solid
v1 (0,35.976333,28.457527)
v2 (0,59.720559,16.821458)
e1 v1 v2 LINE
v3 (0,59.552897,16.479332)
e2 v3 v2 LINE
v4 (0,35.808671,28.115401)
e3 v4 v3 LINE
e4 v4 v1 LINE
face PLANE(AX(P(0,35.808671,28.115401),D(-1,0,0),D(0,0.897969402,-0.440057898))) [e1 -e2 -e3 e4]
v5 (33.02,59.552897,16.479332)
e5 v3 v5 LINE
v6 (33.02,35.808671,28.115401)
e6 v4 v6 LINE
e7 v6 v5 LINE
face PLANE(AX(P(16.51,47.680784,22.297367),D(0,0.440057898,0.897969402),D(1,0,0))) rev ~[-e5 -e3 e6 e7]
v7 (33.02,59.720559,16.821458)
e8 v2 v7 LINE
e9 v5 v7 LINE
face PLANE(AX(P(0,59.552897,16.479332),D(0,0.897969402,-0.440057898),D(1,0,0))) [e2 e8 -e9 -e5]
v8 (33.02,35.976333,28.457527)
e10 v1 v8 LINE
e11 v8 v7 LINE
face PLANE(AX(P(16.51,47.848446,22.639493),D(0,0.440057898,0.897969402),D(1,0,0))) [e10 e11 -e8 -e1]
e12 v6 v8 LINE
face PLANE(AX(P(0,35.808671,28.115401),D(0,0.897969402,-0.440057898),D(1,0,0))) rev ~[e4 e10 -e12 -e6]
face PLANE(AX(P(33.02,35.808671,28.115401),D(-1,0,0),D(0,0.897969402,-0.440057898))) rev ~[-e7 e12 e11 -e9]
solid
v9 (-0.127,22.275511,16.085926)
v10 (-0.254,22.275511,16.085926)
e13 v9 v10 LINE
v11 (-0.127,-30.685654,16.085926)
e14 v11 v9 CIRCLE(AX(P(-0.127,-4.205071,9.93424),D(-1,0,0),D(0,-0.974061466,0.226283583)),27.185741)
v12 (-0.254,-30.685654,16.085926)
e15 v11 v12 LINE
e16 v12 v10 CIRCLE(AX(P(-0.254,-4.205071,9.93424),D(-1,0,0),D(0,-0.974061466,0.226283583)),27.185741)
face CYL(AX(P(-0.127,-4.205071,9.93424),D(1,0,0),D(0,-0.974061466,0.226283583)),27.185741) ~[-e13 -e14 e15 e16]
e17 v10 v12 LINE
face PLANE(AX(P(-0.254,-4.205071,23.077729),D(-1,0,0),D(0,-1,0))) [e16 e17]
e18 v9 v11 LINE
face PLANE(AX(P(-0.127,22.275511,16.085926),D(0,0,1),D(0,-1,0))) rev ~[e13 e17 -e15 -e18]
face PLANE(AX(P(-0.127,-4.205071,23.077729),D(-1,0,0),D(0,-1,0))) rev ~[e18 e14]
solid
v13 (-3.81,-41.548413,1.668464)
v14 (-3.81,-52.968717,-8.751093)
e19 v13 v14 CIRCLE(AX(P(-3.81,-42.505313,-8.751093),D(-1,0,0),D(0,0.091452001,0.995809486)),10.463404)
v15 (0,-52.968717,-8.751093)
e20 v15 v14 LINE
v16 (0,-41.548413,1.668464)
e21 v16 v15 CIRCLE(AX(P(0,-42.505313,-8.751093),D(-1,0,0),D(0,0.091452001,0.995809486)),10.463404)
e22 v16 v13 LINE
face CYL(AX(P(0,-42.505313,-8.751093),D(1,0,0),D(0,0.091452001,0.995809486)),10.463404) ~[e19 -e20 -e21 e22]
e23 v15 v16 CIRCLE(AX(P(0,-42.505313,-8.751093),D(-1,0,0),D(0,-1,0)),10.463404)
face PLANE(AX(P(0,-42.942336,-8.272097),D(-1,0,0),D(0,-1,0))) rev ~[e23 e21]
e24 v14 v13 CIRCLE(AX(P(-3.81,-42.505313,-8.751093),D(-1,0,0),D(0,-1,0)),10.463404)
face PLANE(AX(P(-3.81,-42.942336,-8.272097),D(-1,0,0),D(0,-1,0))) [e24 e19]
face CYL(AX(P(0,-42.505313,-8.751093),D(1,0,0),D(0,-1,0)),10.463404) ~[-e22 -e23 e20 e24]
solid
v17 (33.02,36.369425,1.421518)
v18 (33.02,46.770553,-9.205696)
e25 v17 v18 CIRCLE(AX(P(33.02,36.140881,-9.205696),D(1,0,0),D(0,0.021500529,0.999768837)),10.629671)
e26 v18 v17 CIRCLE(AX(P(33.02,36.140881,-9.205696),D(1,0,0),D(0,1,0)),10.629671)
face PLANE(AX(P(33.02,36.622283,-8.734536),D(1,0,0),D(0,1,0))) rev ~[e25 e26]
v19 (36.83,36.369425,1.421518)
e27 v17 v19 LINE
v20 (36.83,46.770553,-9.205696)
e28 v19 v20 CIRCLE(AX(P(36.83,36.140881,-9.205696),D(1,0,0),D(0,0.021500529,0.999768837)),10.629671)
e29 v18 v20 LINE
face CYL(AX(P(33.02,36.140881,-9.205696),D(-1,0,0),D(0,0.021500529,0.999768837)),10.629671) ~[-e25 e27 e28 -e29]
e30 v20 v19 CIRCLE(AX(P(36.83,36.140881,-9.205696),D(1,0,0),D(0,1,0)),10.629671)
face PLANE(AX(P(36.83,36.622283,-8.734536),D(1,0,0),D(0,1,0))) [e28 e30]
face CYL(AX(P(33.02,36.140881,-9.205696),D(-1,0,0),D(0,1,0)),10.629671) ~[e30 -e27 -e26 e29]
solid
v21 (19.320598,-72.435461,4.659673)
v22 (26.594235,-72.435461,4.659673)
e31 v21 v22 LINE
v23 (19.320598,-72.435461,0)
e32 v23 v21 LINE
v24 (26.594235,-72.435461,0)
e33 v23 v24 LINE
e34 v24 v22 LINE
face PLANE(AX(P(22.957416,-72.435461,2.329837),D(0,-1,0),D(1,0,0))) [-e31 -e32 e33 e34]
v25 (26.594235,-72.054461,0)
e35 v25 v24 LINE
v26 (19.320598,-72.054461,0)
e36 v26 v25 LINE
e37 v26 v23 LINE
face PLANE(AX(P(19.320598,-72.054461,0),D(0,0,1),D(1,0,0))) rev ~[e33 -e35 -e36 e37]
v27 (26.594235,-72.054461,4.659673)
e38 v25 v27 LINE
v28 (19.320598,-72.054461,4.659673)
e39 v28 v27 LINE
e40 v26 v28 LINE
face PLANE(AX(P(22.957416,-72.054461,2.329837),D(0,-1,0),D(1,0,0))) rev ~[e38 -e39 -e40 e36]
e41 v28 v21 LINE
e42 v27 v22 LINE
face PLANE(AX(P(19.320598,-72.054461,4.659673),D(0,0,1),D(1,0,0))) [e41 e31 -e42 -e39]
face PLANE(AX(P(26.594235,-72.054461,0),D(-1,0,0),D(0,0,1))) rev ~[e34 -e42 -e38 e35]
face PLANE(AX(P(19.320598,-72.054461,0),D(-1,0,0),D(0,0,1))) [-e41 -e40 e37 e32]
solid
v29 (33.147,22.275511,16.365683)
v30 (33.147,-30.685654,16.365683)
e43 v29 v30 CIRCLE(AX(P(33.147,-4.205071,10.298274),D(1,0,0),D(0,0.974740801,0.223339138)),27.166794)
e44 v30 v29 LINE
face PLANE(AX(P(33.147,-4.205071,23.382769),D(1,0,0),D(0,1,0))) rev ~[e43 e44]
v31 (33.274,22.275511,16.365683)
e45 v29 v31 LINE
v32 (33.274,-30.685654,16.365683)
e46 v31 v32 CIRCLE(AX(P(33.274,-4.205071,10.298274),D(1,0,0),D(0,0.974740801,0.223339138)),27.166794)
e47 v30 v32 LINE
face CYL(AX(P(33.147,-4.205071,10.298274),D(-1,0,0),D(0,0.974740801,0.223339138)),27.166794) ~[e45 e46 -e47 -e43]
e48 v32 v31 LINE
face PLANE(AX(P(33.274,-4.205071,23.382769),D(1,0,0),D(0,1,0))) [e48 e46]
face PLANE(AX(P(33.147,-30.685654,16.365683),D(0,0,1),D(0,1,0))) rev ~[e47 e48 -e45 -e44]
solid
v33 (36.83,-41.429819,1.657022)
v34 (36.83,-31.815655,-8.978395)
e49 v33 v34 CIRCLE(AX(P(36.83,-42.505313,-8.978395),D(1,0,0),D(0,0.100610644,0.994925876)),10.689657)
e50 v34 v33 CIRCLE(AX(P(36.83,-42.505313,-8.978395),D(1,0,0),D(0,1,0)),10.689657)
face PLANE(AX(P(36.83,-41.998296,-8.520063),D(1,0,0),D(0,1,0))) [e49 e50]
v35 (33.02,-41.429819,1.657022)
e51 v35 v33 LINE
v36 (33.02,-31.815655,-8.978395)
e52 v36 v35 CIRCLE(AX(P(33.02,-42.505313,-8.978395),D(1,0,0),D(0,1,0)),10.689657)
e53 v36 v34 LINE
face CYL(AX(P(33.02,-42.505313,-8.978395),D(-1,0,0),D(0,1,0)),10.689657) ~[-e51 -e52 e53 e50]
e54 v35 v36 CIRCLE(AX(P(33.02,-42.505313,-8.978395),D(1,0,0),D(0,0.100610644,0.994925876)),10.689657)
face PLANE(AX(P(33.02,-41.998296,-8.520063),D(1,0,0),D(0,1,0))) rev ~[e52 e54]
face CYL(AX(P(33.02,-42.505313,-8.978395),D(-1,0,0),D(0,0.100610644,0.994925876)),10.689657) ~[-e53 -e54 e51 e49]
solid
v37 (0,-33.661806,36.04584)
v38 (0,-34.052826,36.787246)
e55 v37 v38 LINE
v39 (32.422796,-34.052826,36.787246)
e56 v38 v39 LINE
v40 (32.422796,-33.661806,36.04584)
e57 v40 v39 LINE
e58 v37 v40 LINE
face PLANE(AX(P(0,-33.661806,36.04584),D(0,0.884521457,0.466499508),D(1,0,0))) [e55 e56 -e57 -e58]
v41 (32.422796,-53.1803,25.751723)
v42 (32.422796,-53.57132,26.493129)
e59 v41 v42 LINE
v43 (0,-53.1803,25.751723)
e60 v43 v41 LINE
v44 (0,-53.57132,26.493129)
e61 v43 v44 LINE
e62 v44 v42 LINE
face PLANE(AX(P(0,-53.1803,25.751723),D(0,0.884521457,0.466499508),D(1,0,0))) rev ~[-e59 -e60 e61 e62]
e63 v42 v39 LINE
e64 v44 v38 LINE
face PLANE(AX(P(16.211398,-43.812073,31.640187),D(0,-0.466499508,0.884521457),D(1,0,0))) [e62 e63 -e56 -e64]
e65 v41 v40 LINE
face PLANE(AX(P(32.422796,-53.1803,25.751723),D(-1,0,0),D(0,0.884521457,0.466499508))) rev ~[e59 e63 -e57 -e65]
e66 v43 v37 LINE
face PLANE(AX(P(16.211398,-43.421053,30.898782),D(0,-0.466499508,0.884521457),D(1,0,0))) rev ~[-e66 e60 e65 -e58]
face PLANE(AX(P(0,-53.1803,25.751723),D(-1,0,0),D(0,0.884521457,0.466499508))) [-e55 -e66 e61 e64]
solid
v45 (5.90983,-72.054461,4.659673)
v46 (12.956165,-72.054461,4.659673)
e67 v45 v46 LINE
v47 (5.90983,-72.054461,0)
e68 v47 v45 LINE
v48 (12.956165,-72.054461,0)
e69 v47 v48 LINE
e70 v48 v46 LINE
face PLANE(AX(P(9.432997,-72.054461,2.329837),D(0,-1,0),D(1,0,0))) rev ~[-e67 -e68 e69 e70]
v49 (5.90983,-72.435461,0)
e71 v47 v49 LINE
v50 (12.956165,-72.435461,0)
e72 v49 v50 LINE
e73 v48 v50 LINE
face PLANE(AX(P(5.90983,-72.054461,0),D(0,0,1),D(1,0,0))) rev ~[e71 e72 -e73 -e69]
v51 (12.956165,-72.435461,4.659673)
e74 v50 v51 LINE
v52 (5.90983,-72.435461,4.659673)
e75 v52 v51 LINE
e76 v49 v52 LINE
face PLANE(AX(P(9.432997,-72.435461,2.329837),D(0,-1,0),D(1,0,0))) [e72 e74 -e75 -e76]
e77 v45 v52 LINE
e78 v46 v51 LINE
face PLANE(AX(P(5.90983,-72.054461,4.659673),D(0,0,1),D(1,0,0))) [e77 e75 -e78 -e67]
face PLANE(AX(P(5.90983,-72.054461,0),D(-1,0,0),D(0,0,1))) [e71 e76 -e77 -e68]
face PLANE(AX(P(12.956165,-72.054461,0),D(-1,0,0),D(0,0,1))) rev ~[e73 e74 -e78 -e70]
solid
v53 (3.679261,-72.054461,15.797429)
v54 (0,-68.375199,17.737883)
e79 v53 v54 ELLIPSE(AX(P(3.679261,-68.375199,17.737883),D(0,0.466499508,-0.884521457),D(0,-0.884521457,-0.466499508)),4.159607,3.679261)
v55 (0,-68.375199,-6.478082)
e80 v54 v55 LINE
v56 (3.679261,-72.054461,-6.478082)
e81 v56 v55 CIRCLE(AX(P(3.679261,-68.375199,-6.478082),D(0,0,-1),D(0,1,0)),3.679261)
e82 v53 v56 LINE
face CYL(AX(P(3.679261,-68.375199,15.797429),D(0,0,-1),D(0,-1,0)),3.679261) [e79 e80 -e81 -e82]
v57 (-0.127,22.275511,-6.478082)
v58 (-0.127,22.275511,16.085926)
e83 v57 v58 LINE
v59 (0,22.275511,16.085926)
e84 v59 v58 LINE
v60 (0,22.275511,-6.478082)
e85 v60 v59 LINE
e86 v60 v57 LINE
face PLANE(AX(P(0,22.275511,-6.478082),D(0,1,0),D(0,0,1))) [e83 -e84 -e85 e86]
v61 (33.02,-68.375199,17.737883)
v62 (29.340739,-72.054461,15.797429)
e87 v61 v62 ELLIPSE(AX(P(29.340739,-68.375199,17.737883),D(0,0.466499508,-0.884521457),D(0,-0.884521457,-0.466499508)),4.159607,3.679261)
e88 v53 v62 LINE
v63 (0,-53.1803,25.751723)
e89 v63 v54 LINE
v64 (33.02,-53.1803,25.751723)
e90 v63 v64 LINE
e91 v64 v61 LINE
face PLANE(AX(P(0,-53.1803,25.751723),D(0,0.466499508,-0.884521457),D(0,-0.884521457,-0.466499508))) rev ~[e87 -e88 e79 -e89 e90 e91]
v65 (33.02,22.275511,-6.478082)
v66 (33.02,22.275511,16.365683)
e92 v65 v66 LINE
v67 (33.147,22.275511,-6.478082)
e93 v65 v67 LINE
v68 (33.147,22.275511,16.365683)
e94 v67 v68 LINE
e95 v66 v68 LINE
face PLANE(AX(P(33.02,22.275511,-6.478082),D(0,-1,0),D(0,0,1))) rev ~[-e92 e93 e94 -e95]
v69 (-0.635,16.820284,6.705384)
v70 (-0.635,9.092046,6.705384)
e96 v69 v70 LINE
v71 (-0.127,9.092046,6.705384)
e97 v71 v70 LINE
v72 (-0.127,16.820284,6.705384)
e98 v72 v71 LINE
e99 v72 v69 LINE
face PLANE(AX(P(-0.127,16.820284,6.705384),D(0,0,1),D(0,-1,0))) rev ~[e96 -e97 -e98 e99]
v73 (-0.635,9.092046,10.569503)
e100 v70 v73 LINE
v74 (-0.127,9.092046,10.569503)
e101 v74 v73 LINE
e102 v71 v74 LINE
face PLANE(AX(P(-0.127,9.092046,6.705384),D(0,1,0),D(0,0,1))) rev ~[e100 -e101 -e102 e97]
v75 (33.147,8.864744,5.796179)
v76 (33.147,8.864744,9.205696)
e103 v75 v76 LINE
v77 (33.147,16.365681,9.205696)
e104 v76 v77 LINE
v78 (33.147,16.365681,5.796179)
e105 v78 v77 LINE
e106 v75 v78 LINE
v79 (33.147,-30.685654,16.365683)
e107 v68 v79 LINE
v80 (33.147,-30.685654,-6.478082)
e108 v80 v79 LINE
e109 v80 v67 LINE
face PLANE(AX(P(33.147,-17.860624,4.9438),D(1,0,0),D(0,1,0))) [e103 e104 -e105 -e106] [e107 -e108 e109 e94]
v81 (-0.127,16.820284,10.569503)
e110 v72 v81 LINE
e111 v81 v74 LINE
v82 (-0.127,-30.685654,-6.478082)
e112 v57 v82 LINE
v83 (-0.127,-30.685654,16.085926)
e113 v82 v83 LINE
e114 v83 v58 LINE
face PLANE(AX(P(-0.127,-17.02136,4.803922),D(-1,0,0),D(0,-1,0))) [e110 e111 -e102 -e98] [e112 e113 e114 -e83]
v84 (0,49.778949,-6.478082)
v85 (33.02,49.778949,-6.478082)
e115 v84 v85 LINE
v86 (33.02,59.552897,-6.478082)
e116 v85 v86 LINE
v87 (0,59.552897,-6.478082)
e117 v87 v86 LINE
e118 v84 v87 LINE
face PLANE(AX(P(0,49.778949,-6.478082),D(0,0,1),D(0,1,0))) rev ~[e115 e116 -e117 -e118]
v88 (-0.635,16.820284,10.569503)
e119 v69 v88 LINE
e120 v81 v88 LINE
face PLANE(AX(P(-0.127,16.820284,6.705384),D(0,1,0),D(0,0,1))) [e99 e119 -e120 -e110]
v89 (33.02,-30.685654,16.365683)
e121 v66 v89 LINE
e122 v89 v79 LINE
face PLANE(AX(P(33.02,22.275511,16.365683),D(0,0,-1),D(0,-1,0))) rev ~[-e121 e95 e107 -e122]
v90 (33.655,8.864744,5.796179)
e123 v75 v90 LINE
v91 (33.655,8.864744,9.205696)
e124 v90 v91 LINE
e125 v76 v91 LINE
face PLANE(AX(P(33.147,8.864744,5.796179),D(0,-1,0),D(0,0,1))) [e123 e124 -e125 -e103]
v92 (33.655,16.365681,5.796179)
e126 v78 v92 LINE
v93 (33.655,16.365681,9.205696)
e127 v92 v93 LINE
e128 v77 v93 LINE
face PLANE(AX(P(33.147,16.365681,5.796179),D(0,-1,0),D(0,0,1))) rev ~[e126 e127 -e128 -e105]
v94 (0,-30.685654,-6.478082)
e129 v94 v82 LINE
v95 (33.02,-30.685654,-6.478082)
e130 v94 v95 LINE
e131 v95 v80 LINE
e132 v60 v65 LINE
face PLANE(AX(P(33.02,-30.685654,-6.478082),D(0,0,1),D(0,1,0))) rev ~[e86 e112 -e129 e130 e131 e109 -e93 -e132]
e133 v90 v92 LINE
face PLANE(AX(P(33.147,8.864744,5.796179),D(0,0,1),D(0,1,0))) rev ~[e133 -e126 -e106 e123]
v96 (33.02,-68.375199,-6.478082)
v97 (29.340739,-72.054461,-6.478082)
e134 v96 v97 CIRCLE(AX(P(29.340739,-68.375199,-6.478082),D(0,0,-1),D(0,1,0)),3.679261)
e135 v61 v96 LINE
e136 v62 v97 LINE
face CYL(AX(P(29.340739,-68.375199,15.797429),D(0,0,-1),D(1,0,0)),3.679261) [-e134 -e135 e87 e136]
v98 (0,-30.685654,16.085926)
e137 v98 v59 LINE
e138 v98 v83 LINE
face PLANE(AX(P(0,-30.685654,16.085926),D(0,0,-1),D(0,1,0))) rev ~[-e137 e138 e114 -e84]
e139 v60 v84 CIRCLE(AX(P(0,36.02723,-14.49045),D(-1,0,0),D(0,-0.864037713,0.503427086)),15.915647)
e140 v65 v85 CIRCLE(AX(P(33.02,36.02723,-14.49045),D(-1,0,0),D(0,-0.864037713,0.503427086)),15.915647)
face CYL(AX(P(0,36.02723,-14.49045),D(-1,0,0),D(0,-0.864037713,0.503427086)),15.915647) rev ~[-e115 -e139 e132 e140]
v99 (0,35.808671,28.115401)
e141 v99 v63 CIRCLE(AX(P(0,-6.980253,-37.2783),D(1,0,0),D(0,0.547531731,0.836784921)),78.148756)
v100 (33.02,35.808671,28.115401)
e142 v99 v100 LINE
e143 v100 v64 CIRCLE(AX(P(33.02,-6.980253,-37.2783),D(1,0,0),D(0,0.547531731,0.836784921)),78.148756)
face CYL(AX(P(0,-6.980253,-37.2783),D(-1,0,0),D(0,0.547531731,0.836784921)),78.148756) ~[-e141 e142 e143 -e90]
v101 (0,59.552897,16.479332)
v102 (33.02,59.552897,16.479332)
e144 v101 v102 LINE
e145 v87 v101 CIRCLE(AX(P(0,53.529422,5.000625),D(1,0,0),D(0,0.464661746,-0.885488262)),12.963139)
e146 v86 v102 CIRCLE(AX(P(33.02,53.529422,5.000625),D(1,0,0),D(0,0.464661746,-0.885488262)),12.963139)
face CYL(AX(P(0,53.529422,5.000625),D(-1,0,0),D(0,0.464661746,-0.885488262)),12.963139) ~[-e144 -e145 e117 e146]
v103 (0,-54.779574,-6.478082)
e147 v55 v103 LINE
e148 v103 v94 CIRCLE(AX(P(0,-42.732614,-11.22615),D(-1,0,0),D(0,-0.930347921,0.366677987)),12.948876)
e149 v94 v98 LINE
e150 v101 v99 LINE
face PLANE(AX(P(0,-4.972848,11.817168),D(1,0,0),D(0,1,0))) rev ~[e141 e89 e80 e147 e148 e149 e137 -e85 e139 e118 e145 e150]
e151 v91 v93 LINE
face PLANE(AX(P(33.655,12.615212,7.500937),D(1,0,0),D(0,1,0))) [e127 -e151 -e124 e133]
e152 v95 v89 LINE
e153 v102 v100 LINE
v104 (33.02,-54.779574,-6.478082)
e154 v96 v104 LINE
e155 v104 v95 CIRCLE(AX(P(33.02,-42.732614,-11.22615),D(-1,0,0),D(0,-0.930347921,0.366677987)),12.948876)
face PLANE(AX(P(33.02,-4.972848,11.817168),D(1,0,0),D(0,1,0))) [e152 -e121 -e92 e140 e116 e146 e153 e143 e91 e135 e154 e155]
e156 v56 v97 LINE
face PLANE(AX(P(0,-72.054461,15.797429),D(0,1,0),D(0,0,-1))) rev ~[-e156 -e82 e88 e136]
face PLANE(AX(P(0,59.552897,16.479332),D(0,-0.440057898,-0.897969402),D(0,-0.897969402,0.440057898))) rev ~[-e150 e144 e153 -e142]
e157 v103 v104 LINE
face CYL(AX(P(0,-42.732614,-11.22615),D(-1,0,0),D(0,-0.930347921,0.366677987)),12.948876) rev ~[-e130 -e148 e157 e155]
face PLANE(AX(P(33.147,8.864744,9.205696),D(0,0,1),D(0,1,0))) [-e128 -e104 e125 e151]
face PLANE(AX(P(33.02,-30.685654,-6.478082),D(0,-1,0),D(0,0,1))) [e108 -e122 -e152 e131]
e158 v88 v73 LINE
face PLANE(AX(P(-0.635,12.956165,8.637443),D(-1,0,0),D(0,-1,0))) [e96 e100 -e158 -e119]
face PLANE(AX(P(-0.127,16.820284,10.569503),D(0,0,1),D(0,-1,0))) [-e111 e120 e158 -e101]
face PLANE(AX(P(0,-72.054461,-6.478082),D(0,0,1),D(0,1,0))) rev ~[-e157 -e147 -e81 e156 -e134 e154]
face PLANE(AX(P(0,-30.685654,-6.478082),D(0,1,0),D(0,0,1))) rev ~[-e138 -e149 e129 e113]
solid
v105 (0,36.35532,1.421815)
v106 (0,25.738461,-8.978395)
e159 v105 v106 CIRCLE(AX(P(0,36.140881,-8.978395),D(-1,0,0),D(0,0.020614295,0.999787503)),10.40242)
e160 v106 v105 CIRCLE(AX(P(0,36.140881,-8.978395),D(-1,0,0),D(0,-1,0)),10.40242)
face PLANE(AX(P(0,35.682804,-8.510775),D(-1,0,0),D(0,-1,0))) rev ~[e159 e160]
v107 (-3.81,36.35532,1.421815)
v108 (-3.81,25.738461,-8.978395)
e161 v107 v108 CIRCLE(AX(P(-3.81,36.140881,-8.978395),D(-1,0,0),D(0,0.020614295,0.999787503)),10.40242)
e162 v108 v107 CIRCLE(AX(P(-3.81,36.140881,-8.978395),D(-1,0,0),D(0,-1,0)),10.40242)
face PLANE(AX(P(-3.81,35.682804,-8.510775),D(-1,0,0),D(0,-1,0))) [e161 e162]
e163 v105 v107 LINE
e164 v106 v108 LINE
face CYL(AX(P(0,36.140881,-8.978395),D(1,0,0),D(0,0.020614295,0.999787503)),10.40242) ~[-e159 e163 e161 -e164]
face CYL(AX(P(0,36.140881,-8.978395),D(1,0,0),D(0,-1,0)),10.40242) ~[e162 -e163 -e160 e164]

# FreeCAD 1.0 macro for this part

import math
import FreeCAD as App
import Part
import Sketcher
Q = App.Units.Quantity


def edges_at(feature, points):
    """Names of the edges that pass closest to the given points."""
    edges = feature.Shape.Edges
    near = lambda p: min(range(len(edges)), key=lambda i: edges[i].distToShape(Part.Vertex(*p))[0])
    return sorted({f"Edge{near(p) + 1}" for p in points})

doc = App.newDocument("Part")
body = doc.addObject("PartDesign::Body", "Body")

# Sketch on YZ plane
sketch1 = doc.addObject("Sketcher::SketchObject", "Sketch")
body.addObject(sketch1)
sketch1.AttachmentSupport = (doc.YZ_Plane, [""])
sketch1.MapMode = "FlatFace"
sketch1.addGeometry([
    Part.LineSegment(App.Vector(-72.054461, 15.797429, 0), App.Vector(-72.054461, -6.478082, 0)),  # 0
    Part.LineSegment(App.Vector(-72.054461, -6.478082, 0), App.Vector(-54.779574, -6.478082, 0)),  # 1
    Part.ArcOfCircle(Part.Circle(App.Vector(-42.732614, -11.22615, 0), App.Vector(0, 0, 1), 12.948876), math.radians(21.510885), math.radians(158.489115)),  # 2
    Part.LineSegment(App.Vector(-30.685654, -6.478082, 0), App.Vector(22.275511, -6.478082, 0)),  # 3
    Part.ArcOfCircle(Part.Circle(App.Vector(36.02723, -14.49045, 0), App.Vector(0, 0, 1), 15.915647), math.radians(30.226994), math.radians(149.773006)),  # 4
    Part.LineSegment(App.Vector(49.778949, -6.478082, 0), App.Vector(59.552897, -6.478082, 0)),  # 5
    Part.ArcOfCircle(Part.Circle(App.Vector(53.529422, 5.000625, 0), App.Vector(0, 0, 1), 12.963139), math.radians(-62.311667), math.radians(62.311667)),  # 6
    Part.LineSegment(App.Vector(59.552897, 16.479332, 0), App.Vector(35.808671, 28.115401, 0)),  # 7
    Part.ArcOfCircle(Part.Circle(App.Vector(-6.980253, -37.2783, 0), App.Vector(0, 0, 1), 78.148756), math.radians(56.802156), math.radians(126.240849)),  # 8
    Part.LineSegment(App.Vector(-53.1803, 25.751723, 0), App.Vector(-72.054461, 15.797429, 0)),  # 9
], False)
sketch1.addConstraint([
    Sketcher.Constraint("Coincident", 0, 2, 1, 1),
    Sketcher.Constraint("Coincident", 1, 2, 2, 2),
    Sketcher.Constraint("Coincident", 2, 1, 3, 1),
    Sketcher.Constraint("Coincident", 3, 2, 4, 2),
    Sketcher.Constraint("Coincident", 4, 1, 5, 1),
    Sketcher.Constraint("Coincident", 5, 2, 6, 1),
    Sketcher.Constraint("Coincident", 6, 2, 7, 1),
    Sketcher.Constraint("Coincident", 7, 2, 8, 1),
    Sketcher.Constraint("Coincident", 8, 2, 9, 1),
    Sketcher.Constraint("Coincident", 9, 2, 0, 1),
    Sketcher.Constraint("Vertical", 0),
    Sketcher.Constraint("Horizontal", 1),
    Sketcher.Constraint("Horizontal", 3),
    Sketcher.Constraint("Horizontal", 5),
    Sketcher.Constraint("Horizontal", 1, 2, 2, 1),
    Sketcher.Constraint("Horizontal", 3, 2, 4, 1),
    Sketcher.Constraint("Vertical", 5, 2, 6, 2),
    Sketcher.Constraint("Radius", 6, 12.963139),
    Sketcher.Constraint("Radius", 2, 12.948876),
    Sketcher.Constraint("Radius", 4, 15.915647),
    Sketcher.Constraint("Radius", 8, 78.148756),
    Sketcher.Constraint("DistanceY", 0, 2, 0, 1, 22.275511),
    Sketcher.Constraint("DistanceY", 8, 3, -1, 1, 37.2783),
    Sketcher.Constraint("DistanceY", -1, 1, 7, 2, 28.115401),
    Sketcher.Constraint("DistanceX", 8, 2, -1, 1, 53.1803),
    Sketcher.Constraint("DistanceY", 4, 3, 2, 3, 3.2643),
    Sketcher.Constraint("DistanceX", 2, 1, 8, 3, 23.705401),
    Sketcher.Constraint("DistanceX", 1, 1, 1, 2, 17.274886),
    Sketcher.Constraint("DistanceX", 3, 1, 3, 2, 52.961165),
    Sketcher.Constraint("DistanceX", 5, 1, 5, 2, 9.773947),
    Sketcher.Constraint("DistanceY", 2, 3, -1, 1, 11.22615),
    Sketcher.Constraint("DistanceX", -1, 1, 4, 3, 36.02723),
    Sketcher.Constraint("DistanceX", 0, 2, -1, 1, 72.054461),
    Sketcher.Constraint("DistanceX", 4, 3, 6, 3, 17.502192),
])
pad1 = doc.addObject("PartDesign::Pad", "Pad")
body.addObject(pad1)
pad1.Profile = sketch1
pad1.Length = Q("1.3 in")

# Sketch on YZ plane
sketch2 = doc.addObject("Sketcher::SketchObject", "Sketch001")
body.addObject(sketch2)
sketch2.AttachmentSupport = (doc.YZ_Plane, [""])
sketch2.MapMode = "FlatFace"
sketch2.addGeometry([
    Part.LineSegment(App.Vector(-30.685654, -6.478082, 0), App.Vector(-30.685654, 16.085926, 0)),
    Part.LineSegment(App.Vector(-30.685654, 16.085926, 0), App.Vector(22.275511, 16.085926, 0)),
    Part.LineSegment(App.Vector(22.275511, 16.085926, 0), App.Vector(22.275511, -6.478082, 0)),
    Part.LineSegment(App.Vector(22.275511, -6.478082, 0), App.Vector(-30.685654, -6.478082, 0)),
], False)
sketch2.addConstraint([
    Sketcher.Constraint("Coincident", 0, 2, 1, 1),
    Sketcher.Constraint("Coincident", 1, 2, 2, 1),
    Sketcher.Constraint("Coincident", 2, 2, 3, 1),
    Sketcher.Constraint("Coincident", 3, 2, 0, 1),
    Sketcher.Constraint("Vertical", 0),
    Sketcher.Constraint("Horizontal", 1),
    Sketcher.Constraint("Vertical", 2),
    Sketcher.Constraint("Horizontal", 3),
    Sketcher.Constraint("DistanceY", 0, 1, 0, 2, 22.564009),
    Sketcher.Constraint("DistanceX", 1, 1, 1, 2, 52.961165),
    Sketcher.Constraint("DistanceX", -1, 1, 1, 2, 22.275511),
    Sketcher.Constraint("DistanceY", -1, 1, 0, 2, 16.085926),
])
pad2 = doc.addObject("PartDesign::Pad", "Pad001")
body.addObject(pad2)
pad2.Profile = sketch2
pad2.Length = Q("0.005 in")
pad2.Reversed = True

# Sketch on YZ plane
sketch3 = doc.addObject("Sketcher::SketchObject", "Sketch002")
body.addObject(sketch3)
sketch3.AttachmentSupport = (doc.YZ_Plane, [""])
sketch3.MapMode = "FlatFace"
sketch3.AttachmentOffset = App.Placement(App.Vector(0, 0, 1.3 * 25.4), App.Rotation())
sketch3.addGeometry([
    Part.LineSegment(App.Vector(-30.685654, 16.365683, 0), App.Vector(-30.685654, -6.478082, 0)),
    Part.LineSegment(App.Vector(-30.685654, -6.478082, 0), App.Vector(22.275511, -6.478082, 0)),
    Part.LineSegment(App.Vector(22.275511, -6.478082, 0), App.Vector(22.275511, 16.365683, 0)),
    Part.LineSegment(App.Vector(22.275511, 16.365683, 0), App.Vector(-30.685654, 16.365683, 0)),
], False)
sketch3.addConstraint([
    Sketcher.Constraint("Coincident", 0, 2, 1, 1),
    Sketcher.Constraint("Coincident", 1, 2, 2, 1),
    Sketcher.Constraint("Coincident", 2, 2, 3, 1),
    Sketcher.Constraint("Coincident", 3, 2, 0, 1),
    Sketcher.Constraint("Vertical", 0),
    Sketcher.Constraint("Horizontal", 1),
    Sketcher.Constraint("Vertical", 2),
    Sketcher.Constraint("Horizontal", 3),
    Sketcher.Constraint("DistanceX", 1, 1, 1, 2, 52.961165),
    Sketcher.Constraint("DistanceY", 0, 2, 0, 1, 22.843765),
    Sketcher.Constraint("DistanceX", -1, 1, 1, 2, 22.275511),
    Sketcher.Constraint("DistanceY", 0, 2, -1, 1, 6.478082),
])
pad3 = doc.addObject("PartDesign::Pad", "Pad002")
body.addObject(pad3)
pad3.Profile = sketch3
pad3.Length = Q("0.005 in")
doc.recompute()

fillet = doc.addObject("PartDesign::Fillet", "Fillet")
body.addObject(fillet)
fillet.Base = (pad3, edges_at(pad3, [(33.02, -72.054, 4.66), (0, -72.054, 4.66)]))
fillet.Radius = 3.679261

# Sketch on YZ plane
sketch4 = doc.addObject("Sketcher::SketchObject", "Sketch003")
body.addObject(sketch4)
sketch4.AttachmentSupport = (doc.YZ_Plane, [""])
sketch4.MapMode = "FlatFace"
sketch4.AttachmentOffset = App.Placement(App.Vector(0, 0, -0.005 * 25.4), App.Rotation())
sketch4.addGeometry([
    Part.LineSegment(App.Vector(16.820284, 10.569503, 0), App.Vector(16.820284, 6.705384, 0)),
    Part.LineSegment(App.Vector(16.820284, 6.705384, 0), App.Vector(9.092046, 6.705384, 0)),
    Part.LineSegment(App.Vector(9.092046, 6.705384, 0), App.Vector(9.092046, 10.569503, 0)),
    Part.LineSegment(App.Vector(9.092046, 10.569503, 0), App.Vector(16.820284, 10.569503, 0)),
], False)
sketch4.addConstraint([
    Sketcher.Constraint("Coincident", 0, 2, 1, 1),
    Sketcher.Constraint("Coincident", 1, 2, 2, 1),
    Sketcher.Constraint("Coincident", 2, 2, 3, 1),
    Sketcher.Constraint("Coincident", 3, 2, 0, 1),
    Sketcher.Constraint("Vertical", 0),
    Sketcher.Constraint("Horizontal", 1),
    Sketcher.Constraint("Vertical", 2),
    Sketcher.Constraint("Horizontal", 3),
    Sketcher.Constraint("DistanceY", 0, 2, 0, 1, 3.864119),
    Sketcher.Constraint("DistanceX", 1, 2, 1, 1, 7.728238),
    Sketcher.Constraint("DistanceX", -1, 1, 0, 2, 16.820284),
    Sketcher.Constraint("DistanceY", -1, 1, 0, 2, 6.705384),
])
pad4 = doc.addObject("PartDesign::Pad", "Pad003")
body.addObject(pad4)
pad4.Profile = sketch4
pad4.Length = Q("0.02 in")
pad4.Reversed = True

# Sketch on YZ plane
sketch5 = doc.addObject("Sketcher::SketchObject", "Sketch004")
body.addObject(sketch5)
sketch5.AttachmentSupport = (doc.YZ_Plane, [""])
sketch5.MapMode = "FlatFace"
sketch5.AttachmentOffset = App.Placement(App.Vector(0, 0, 1.305 * 25.4), App.Rotation())
sketch5.addGeometry([
    Part.LineSegment(App.Vector(8.864744, 9.205696, 0), App.Vector(8.864744, 5.796179, 0)),
    Part.LineSegment(App.Vector(8.864744, 5.796179, 0), App.Vector(16.365681, 5.796179, 0)),
    Part.LineSegment(App.Vector(16.365681, 5.796179, 0), App.Vector(16.365681, 9.205696, 0)),
    Part.LineSegment(App.Vector(16.365681, 9.205696, 0), App.Vector(8.864744, 9.205696, 0)),
], False)
sketch5.addConstraint([
    Sketcher.Constraint("Coincident", 0, 2, 1, 1),
    Sketcher.Constraint("Coincident", 1, 2, 2, 1),
    Sketcher.Constraint("Coincident", 2, 2, 3, 1),
    Sketcher.Constraint("Coincident", 3, 2, 0, 1),
    Sketcher.Constraint("Vertical", 0),
    Sketcher.Constraint("Horizontal", 1),
    Sketcher.Constraint("Vertical", 2),
    Sketcher.Constraint("Horizontal", 3),
    Sketcher.Constraint("DistanceX", 1, 1, 1, 2, 7.500937),
    Sketcher.Constraint("DistanceY", 0, 2, 0, 1, 3.409517),
    Sketcher.Constraint("DistanceY", -1, 1, 0, 2, 5.796179),
    Sketcher.Constraint("DistanceX", -1, 1, 1, 2, 16.365681),
])
pad5 = doc.addObject("PartDesign::Pad", "Pad004")
body.addObject(pad5)
pad5.Profile = sketch5
pad5.Length = Q("0.02 in")
body2 = doc.addObject("PartDesign::Body", "Body001")

# Sketch on YZ plane
sketch6 = doc.addObject("Sketcher::SketchObject", "Sketch005")
body2.addObject(sketch6)
sketch6.AttachmentSupport = (doc.getObject("YZ_Plane001"), [""])
sketch6.MapMode = "FlatFace"
sketch6.addGeometry([
    Part.ArcOfCircle(Part.Circle(App.Vector(-42.505313, -8.751093, 0), App.Vector(0, 0, 1), 10.463404), math.radians(84.752855), math.radians(180)),
    Part.ArcOfCircle(Part.Circle(App.Vector(-42.505313, -8.751093, 0), App.Vector(0, 0, 1), 10.463404), math.radians(180), math.radians(444.752855)),
], False)
sketch6.addConstraint([
    Sketcher.Constraint("Tangent", 0, 1, 1, 2),
    Sketcher.Constraint("Coincident", 1, 1, 0, 2),
    Sketcher.Constraint("Horizontal", 0, 3, 1, 1),
    Sketcher.Constraint("Radius", 0, 10.463404),
    Sketcher.Constraint("DistanceX", 0, 3, 0, 1, 0.956899),
    Sketcher.Constraint("DistanceX", 0, 3, -1, 1, 42.505313),
    Sketcher.Constraint("DistanceY", 0, 3, -1, 1, 8.751093),
])
pad6 = doc.addObject("PartDesign::Pad", "Pad005")
body2.addObject(pad6)
pad6.Profile = sketch6
pad6.Length = Q("0.15 in")
pad6.Reversed = True
body3 = doc.addObject("PartDesign::Body", "Body002")

# Sketch on YZ plane
sketch7 = doc.addObject("Sketcher::SketchObject", "Sketch006")
body3.addObject(sketch7)
sketch7.AttachmentSupport = (doc.getObject("YZ_Plane002"), [""])
sketch7.MapMode = "FlatFace"
sketch7.addGeometry([
    Part.ArcOfCircle(Part.Circle(App.Vector(36.140881, -8.978395, 0), App.Vector(0, 0, 1), 10.40242), math.radians(-180), math.radians(88.818804)),
    Part.ArcOfCircle(Part.Circle(App.Vector(36.140881, -8.978395, 0), App.Vector(0, 0, 1), 10.40242), math.radians(88.818804), math.radians(180)),
], False)
sketch7.addConstraint([
    Sketcher.Constraint("Tangent", 0, 1, 1, 2),
    Sketcher.Constraint("Coincident", 1, 1, 0, 2),
    Sketcher.Constraint("Horizontal", 1, 3, 0, 1),
    Sketcher.Constraint("Radius", 0, 10.40242),
    Sketcher.Constraint("DistanceX", -1, 1, 0, 3, 36.140881),
    Sketcher.Constraint("DistanceX", -1, 1, 1, 1, 36.35532),
    Sketcher.Constraint("DistanceY", 0, 3, -1, 1, 8.978395),
])
pad7 = doc.addObject("PartDesign::Pad", "Pad006")
body3.addObject(pad7)
pad7.Profile = sketch7
pad7.Length = Q("0.15 in")
pad7.Reversed = True
body4 = doc.addObject("PartDesign::Body", "Body003")

# Sketch on YZ plane
sketch8 = doc.addObject("Sketcher::SketchObject", "Sketch007")
body4.addObject(sketch8)
sketch8.AttachmentSupport = (doc.getObject("YZ_Plane003"), [""])
sketch8.MapMode = "FlatFace"
sketch8.AttachmentOffset = App.Placement(App.Vector(0, 0, 1.3 * 25.4), App.Rotation())
sketch8.addGeometry([
    Part.ArcOfCircle(Part.Circle(App.Vector(36.140881, -9.205696, 0), App.Vector(0, 0, 1), 10.629671), math.radians(0), math.radians(88.768015)),
    Part.ArcOfCircle(Part.Circle(App.Vector(36.140881, -9.205696, 0), App.Vector(0, 0, 1), 10.629671), math.radians(88.768015), math.radians(360)),
], False)
sketch8.addConstraint([
    Sketcher.Constraint("Tangent", 0, 1, 1, 2),
    Sketcher.Constraint("Coincident", 1, 1, 0, 2),
    Sketcher.Constraint("Horizontal", 1, 3, 0, 1),
    Sketcher.Constraint("Radius", 0, 10.629671),
    Sketcher.Constraint("DistanceX", -1, 1, 0, 3, 36.140881),
    Sketcher.Constraint("DistanceY", 0, 3, -1, 1, 9.205696),
    Sketcher.Constraint("DistanceX", -1, 1, 1, 1, 36.369425),
])
pad8 = doc.addObject("PartDesign::Pad", "Pad007")
body4.addObject(pad8)
pad8.Profile = sketch8
pad8.Length = Q("0.15 in")
body5 = doc.addObject("PartDesign::Body", "Body004")

# Sketch on YZ plane
sketch9 = doc.addObject("Sketcher::SketchObject", "Sketch008")
body5.addObject(sketch9)
sketch9.AttachmentSupport = (doc.getObject("YZ_Plane004"), [""])
sketch9.MapMode = "FlatFace"
sketch9.AttachmentOffset = App.Placement(App.Vector(0, 0, 1.3 * 25.4), App.Rotation())
sketch9.addGeometry([
    Part.ArcOfCircle(Part.Circle(App.Vector(-42.505313, -8.978395, 0), App.Vector(0, 0, 1), 10.689657), math.radians(84.225665), math.radians(360)),
    Part.ArcOfCircle(Part.Circle(App.Vector(-42.505313, -8.978395, 0), App.Vector(0, 0, 1), 10.689657), math.radians(0), math.radians(84.225665)),
], False)
sketch9.addConstraint([
    Sketcher.Constraint("Tangent", 0, 1, 1, 2),
    Sketcher.Constraint("Coincident", 1, 1, 0, 2),
    Sketcher.Constraint("Horizontal", 0, 3, 1, 1),
    Sketcher.Constraint("Radius", 0, 10.689657),
    Sketcher.Constraint("DistanceX", 0, 1, -1, 1, 41.429819),
    Sketcher.Constraint("DistanceY", -1, 1, 0, 1, 1.657022),
    Sketcher.Constraint("DistanceX", 0, 3, -1, 1, 42.505313),
])
pad9 = doc.addObject("PartDesign::Pad", "Pad008")
body5.addObject(pad9)
pad9.Profile = sketch9
pad9.Length = Q("0.15 in")
body6 = doc.addObject("PartDesign::Body", "Body005")

# Sketch on YZ plane
sketch10 = doc.addObject("Sketcher::SketchObject", "Sketch009")
body6.addObject(sketch10)
sketch10.AttachmentSupport = (doc.getObject("YZ_Plane005"), [""])
sketch10.MapMode = "FlatFace"
sketch10.AttachmentOffset = App.Placement(App.Vector(0, 0, -0.005 * 25.4), App.Rotation())
sketch10.addGeometry([
    Part.LineSegment(App.Vector(22.275511, 16.085926, 0), App.Vector(-30.685654, 16.085926, 0)),
    Part.ArcOfCircle(Part.Circle(App.Vector(-4.205071, 9.93424, 0), App.Vector(0, 0, 1), 27.185741), math.radians(13.078369), math.radians(166.921631)),
], False)
sketch10.addConstraint([
    Sketcher.Constraint("Coincident", 0, 1, 1, 1),
    Sketcher.Constraint("Coincident", 1, 2, 0, 2),
    Sketcher.Constraint("Horizontal", 0),
    Sketcher.Constraint("Radius", 1, 27.185741),
    Sketcher.Constraint("DistanceX", 0, 2, 0, 1, 52.961165),
    Sketcher.Constraint("DistanceX", 1, 3, -1, 1, 4.205071),
    Sketcher.Constraint("DistanceY", -1, 1, 1, 3, 9.93424),
])
pad10 = doc.addObject("PartDesign::Pad", "Pad009")
body6.addObject(pad10)
pad10.Profile = sketch10
pad10.Length = Q("0.005 in")
pad10.Reversed = True
body7 = doc.addObject("PartDesign::Body", "Body006")

# Sketch on YZ plane
sketch11 = doc.addObject("Sketcher::SketchObject", "Sketch010")
body7.addObject(sketch11)
sketch11.AttachmentSupport = (doc.getObject("YZ_Plane006"), [""])
sketch11.MapMode = "FlatFace"
sketch11.AttachmentOffset = App.Placement(App.Vector(0, 0, 1.305 * 25.4), App.Rotation())
sketch11.addGeometry([
    Part.LineSegment(App.Vector(-30.685654, 16.365683, 0), App.Vector(22.275511, 16.365683, 0)),
    Part.ArcOfCircle(Part.Circle(App.Vector(-4.205071, 10.298274, 0), App.Vector(0, 0, 1), 27.166794), math.radians(12.905233), math.radians(167.094767)),
], False)
sketch11.addConstraint([
    Sketcher.Constraint("Coincident", 0, 1, 1, 2),
    Sketcher.Constraint("Coincident", 1, 1, 0, 2),
    Sketcher.Constraint("Horizontal", 0),
    Sketcher.Constraint("Radius", 1, 27.166794),
    Sketcher.Constraint("DistanceX", 0, 1, 0, 2, 52.961165),
    Sketcher.Constraint("DistanceX", 1, 3, -1, 1, 4.205071),
    Sketcher.Constraint("DistanceY", -1, 1, 1, 3, 10.298274),
])
pad11 = doc.addObject("PartDesign::Pad", "Pad010")
body7.addObject(pad11)
pad11.Profile = sketch11
pad11.Length = Q("0.005 in")
body8 = doc.addObject("PartDesign::Body", "Body007")

# Sketch on an angled plane
sketch12 = doc.addObject("Sketcher::SketchObject", "Sketch011")
body8.addObject(sketch12)
sketch12.Placement = App.Placement(App.Vector(0, 18.044424, 36.820929), App.Rotation(App.Vector(1, 0, 0), App.Vector(0, 0.897969402, -0.440057898), App.Vector(0, 0.440057898, 0.897969402), "ZXY"))
sketch12.addGeometry([
    Part.LineSegment(App.Vector(0, 46.224819, 0), App.Vector(0, 19.782687, 0)),
    Part.LineSegment(App.Vector(0, 19.782687, 0), App.Vector(33.02, 19.782687, 0)),
    Part.LineSegment(App.Vector(33.02, 19.782687, 0), App.Vector(33.02, 46.224819, 0)),
    Part.LineSegment(App.Vector(33.02, 46.224819, 0), App.Vector(0, 46.224819, 0)),
], False)
sketch12.addConstraint([
    Sketcher.Constraint("Coincident", 0, 2, 1, 1),
    Sketcher.Constraint("Coincident", 1, 2, 2, 1),
    Sketcher.Constraint("Coincident", 2, 2, 3, 1),
    Sketcher.Constraint("Coincident", 3, 2, 0, 1),
    Sketcher.Constraint("Vertical", 0),
    Sketcher.Constraint("Horizontal", 1),
    Sketcher.Constraint("Vertical", 2),
    Sketcher.Constraint("Horizontal", 3),
    Sketcher.Constraint("PointOnObject", 0, 2, -2),
    Sketcher.Constraint("DistanceX", 1, 1, 1, 2, Q("1.3 in")),
    Sketcher.Constraint("DistanceY", 0, 2, 0, 1, 26.442132),
    Sketcher.Constraint("DistanceY", -1, 1, 2, 2, 46.224819),
])
pad12 = doc.addObject("PartDesign::Pad", "Pad011")
body8.addObject(pad12)
pad12.Profile = sketch12
pad12.Length = Q("0.015 in")
body9 = doc.addObject("PartDesign::Body", "Body008")

# Sketch on XZ plane
sketch13 = doc.addObject("Sketcher::SketchObject", "Sketch012")
body9.addObject(sketch13)
sketch13.AttachmentSupport = (doc.getObject("XZ_Plane008"), [""])
sketch13.MapMode = "FlatFace"
sketch13.AttachmentOffset = App.Placement(App.Vector(0, 0, 72.054461), App.Rotation())
sketch13.addGeometry([
    Part.LineSegment(App.Vector(5.90983, 4.659673, 0), App.Vector(5.90983, 0, 0)),
    Part.LineSegment(App.Vector(5.90983, 0, 0), App.Vector(12.956165, 0, 0)),
    Part.LineSegment(App.Vector(12.956165, 0, 0), App.Vector(12.956165, 4.659673, 0)),
    Part.LineSegment(App.Vector(12.956165, 4.659673, 0), App.Vector(5.90983, 4.659673, 0)),
], False)
sketch13.addConstraint([
    Sketcher.Constraint("Coincident", 0, 2, 1, 1),
    Sketcher.Constraint("Coincident", 1, 2, 2, 1),
    Sketcher.Constraint("Coincident", 2, 2, 3, 1),
    Sketcher.Constraint("Coincident", 3, 2, 0, 1),
    Sketcher.Constraint("Vertical", 0),
    Sketcher.Constraint("Horizontal", 1),
    Sketcher.Constraint("Vertical", 2),
    Sketcher.Constraint("Horizontal", 3),
    Sketcher.Constraint("PointOnObject", 0, 2, -1),
    Sketcher.Constraint("DistanceX", 1, 1, 1, 2, 7.046335),
    Sketcher.Constraint("DistanceY", 0, 2, 0, 1, 4.659673),
    Sketcher.Constraint("DistanceX", -1, 1, 0, 2, 5.90983),
])
pad13 = doc.addObject("PartDesign::Pad", "Pad012")
body9.addObject(pad13)
pad13.Profile = sketch13
pad13.Length = Q("0.015 in")
body10 = doc.addObject("PartDesign::Body", "Body009")

# Sketch on XZ plane
sketch14 = doc.addObject("Sketcher::SketchObject", "Sketch013")
body10.addObject(sketch14)
sketch14.AttachmentSupport = (doc.getObject("XZ_Plane009"), [""])
sketch14.MapMode = "FlatFace"
sketch14.AttachmentOffset = App.Placement(App.Vector(0, 0, 72.054461), App.Rotation())
sketch14.addGeometry([
    Part.LineSegment(App.Vector(19.320598, 4.659673, 0), App.Vector(19.320598, 0, 0)),
    Part.LineSegment(App.Vector(19.320598, 0, 0), App.Vector(26.594235, 0, 0)),
    Part.LineSegment(App.Vector(26.594235, 0, 0), App.Vector(26.594235, 4.659673, 0)),
    Part.LineSegment(App.Vector(26.594235, 4.659673, 0), App.Vector(19.320598, 4.659673, 0)),
], False)
sketch14.addConstraint([
    Sketcher.Constraint("Coincident", 0, 2, 1, 1),
    Sketcher.Constraint("Coincident", 1, 2, 2, 1),
    Sketcher.Constraint("Coincident", 2, 2, 3, 1),
    Sketcher.Constraint("Coincident", 3, 2, 0, 1),
    Sketcher.Constraint("Vertical", 0),
    Sketcher.Constraint("Horizontal", 1),
    Sketcher.Constraint("Vertical", 2),
    Sketcher.Constraint("Horizontal", 3),
    Sketcher.Constraint("PointOnObject", 0, 2, -1),
    Sketcher.Constraint("DistanceX", 1, 1, 1, 2, 7.273637),
    Sketcher.Constraint("DistanceY", 0, 2, 0, 1, 4.659673),
    Sketcher.Constraint("DistanceX", -1, 1, 0, 2, 19.320598),
])
pad14 = doc.addObject("PartDesign::Pad", "Pad013")
body10.addObject(pad14)
pad14.Profile = sketch14
pad14.Length = Q("0.015 in")
body11 = doc.addObject("PartDesign::Body", "Body010")

# Sketch on an angled plane
sketch15 = doc.addObject("Sketcher::SketchObject", "Sketch014")
body11.addObject(sketch15)
sketch15.Placement = App.Placement(App.Vector(0, -22.199095, 42.091311), App.Rotation(App.Vector(1, 0, 0), App.Vector(0, 0.884521457, 0.466499508), App.Vector(0, -0.466499508, 0.884521457), "ZXY"))
sketch15.addGeometry([
    Part.LineSegment(App.Vector(0, -12.959223, 0), App.Vector(0, -35.02595, 0)),
    Part.LineSegment(App.Vector(0, -35.02595, 0), App.Vector(32.422796, -35.02595, 0)),
    Part.LineSegment(App.Vector(32.422796, -35.02595, 0), App.Vector(32.422796, -12.959223, 0)),
    Part.LineSegment(App.Vector(32.422796, -12.959223, 0), App.Vector(0, -12.959223, 0)),
], False)
sketch15.addConstraint([
    Sketcher.Constraint("Coincident", 0, 2, 1, 1),
    Sketcher.Constraint("Coincident", 1, 2, 2, 1),
    Sketcher.Constraint("Coincident", 2, 2, 3, 1),
    Sketcher.Constraint("Coincident", 3, 2, 0, 1),
    Sketcher.Constraint("Vertical", 0),
    Sketcher.Constraint("Horizontal", 1),
    Sketcher.Constraint("Vertical", 2),
    Sketcher.Constraint("Horizontal", 3),
    Sketcher.Constraint("PointOnObject", 0, 2, -2),
    Sketcher.Constraint("DistanceX", 1, 1, 1, 2, 32.422796),
    Sketcher.Constraint("DistanceY", 0, 2, 0, 1, 22.066727),
    Sketcher.Constraint("DistanceY", 0, 2, -1, 1, 35.02595),
])
pad15 = doc.addObject("PartDesign::Pad", "Pad014")
body11.addObject(pad15)
pad15.Profile = sketch15
pad15.Length = Q("0.033 in")

doc.recompute()
